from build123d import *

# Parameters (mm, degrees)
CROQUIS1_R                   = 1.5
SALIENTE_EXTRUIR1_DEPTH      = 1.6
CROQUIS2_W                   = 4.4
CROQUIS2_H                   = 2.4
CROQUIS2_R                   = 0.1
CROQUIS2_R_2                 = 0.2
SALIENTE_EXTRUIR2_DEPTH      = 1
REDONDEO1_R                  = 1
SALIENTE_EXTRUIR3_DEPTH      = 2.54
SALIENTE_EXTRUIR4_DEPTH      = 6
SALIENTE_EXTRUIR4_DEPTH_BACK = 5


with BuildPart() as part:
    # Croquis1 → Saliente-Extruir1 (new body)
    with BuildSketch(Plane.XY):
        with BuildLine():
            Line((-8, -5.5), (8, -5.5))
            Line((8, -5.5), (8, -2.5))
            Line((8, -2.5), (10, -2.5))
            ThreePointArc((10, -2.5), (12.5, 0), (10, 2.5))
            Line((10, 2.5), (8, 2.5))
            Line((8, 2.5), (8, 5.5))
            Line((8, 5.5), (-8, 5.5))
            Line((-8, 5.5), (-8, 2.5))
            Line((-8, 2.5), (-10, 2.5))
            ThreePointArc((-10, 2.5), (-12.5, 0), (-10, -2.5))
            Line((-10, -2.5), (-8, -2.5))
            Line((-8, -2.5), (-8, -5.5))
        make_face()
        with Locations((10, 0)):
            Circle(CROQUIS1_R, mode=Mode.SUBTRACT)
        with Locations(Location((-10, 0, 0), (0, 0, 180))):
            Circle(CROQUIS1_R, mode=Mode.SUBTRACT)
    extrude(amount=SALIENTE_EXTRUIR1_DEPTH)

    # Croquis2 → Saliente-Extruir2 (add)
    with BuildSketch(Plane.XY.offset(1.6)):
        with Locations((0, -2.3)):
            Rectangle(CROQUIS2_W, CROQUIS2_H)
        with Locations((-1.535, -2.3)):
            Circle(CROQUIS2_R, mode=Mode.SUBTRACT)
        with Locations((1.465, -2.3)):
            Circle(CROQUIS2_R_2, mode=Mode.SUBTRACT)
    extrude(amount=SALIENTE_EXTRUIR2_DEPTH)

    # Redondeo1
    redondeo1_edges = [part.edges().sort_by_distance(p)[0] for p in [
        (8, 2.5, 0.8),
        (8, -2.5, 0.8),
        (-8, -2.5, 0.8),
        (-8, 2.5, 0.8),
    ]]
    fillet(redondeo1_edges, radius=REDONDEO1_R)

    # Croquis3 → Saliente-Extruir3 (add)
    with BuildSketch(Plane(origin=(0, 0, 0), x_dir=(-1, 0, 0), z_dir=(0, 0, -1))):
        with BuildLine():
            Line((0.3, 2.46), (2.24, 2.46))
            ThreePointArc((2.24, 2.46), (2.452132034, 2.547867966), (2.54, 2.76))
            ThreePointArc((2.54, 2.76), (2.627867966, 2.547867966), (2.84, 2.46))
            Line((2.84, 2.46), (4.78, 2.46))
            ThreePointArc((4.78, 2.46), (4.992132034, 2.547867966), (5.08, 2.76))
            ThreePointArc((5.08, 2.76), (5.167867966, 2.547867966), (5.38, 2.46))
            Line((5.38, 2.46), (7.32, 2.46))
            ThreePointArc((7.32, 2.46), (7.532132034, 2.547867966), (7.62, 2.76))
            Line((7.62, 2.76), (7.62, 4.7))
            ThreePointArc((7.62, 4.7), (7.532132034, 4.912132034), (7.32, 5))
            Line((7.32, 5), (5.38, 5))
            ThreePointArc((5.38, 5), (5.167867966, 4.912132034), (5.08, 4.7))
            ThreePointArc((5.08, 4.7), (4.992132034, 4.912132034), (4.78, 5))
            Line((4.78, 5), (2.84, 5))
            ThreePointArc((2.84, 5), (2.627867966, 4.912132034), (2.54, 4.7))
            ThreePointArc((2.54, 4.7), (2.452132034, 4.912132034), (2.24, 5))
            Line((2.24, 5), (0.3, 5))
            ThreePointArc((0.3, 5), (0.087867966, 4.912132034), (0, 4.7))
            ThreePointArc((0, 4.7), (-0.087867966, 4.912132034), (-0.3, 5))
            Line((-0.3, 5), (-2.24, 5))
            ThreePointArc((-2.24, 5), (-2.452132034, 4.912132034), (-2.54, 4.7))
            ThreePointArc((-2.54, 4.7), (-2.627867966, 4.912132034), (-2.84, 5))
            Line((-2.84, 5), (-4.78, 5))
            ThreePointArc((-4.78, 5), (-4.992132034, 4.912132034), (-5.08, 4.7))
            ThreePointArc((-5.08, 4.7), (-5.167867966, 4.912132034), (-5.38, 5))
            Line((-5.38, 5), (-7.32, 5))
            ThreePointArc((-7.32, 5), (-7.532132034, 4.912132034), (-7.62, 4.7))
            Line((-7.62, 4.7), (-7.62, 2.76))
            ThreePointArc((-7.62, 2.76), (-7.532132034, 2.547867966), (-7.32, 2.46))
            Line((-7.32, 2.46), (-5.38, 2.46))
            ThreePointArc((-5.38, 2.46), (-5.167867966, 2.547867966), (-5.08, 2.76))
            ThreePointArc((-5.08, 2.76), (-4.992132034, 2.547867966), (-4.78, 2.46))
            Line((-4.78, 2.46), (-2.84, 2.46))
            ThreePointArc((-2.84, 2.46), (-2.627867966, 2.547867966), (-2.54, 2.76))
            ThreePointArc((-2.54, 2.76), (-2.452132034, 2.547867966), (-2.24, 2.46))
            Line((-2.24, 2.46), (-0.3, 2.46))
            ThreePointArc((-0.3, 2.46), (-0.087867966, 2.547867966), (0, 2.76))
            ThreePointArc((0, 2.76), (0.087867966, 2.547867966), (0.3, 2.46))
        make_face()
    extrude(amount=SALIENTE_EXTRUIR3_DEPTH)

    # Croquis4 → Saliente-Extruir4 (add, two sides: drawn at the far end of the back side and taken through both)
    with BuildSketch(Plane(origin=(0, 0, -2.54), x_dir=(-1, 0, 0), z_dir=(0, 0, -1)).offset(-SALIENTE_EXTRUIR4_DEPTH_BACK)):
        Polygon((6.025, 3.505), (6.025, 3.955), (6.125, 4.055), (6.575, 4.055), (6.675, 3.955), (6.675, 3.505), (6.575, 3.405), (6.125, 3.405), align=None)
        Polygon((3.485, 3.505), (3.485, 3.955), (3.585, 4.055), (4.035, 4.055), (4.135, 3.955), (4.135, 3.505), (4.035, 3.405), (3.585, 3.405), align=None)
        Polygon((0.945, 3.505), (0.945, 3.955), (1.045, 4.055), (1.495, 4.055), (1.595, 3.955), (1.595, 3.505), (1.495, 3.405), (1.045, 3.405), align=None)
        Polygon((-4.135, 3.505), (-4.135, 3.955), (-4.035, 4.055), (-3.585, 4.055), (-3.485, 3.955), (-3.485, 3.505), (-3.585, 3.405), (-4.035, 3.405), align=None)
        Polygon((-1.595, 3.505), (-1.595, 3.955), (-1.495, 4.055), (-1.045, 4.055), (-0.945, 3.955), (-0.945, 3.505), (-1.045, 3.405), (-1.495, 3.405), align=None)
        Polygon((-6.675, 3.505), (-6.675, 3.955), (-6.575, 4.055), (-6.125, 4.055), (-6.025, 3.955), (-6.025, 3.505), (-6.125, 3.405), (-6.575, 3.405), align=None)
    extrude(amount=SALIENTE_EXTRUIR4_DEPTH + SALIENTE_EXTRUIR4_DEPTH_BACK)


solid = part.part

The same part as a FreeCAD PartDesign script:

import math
import FreeCAD as App
import Part
import Sketcher
from FreeCAD import Vector
Q = App.Units.Quantity


def edges_at(feature, points):
    """Names of the edges that pass closest to the given points."""
    edges = feature.Shape.Edges
    near = lambda p: min(range(len(edges)), key=lambda i: edges[i].distToShape(Part.Vertex(*p))[0])
    return sorted({f"Edge{near(p) + 1}" for p in points})


def add_polygon(sketch, points):
    """Adds a closed chain of lines whose ends are joined by coincident constraints."""
    first, n = sketch.GeometryCount, len(points)
    for a, b in zip(points, points[1:] + points[:1]):
        sketch.addGeometry(Part.LineSegment(App.Vector(*a, 0), App.Vector(*b, 0)), False)
    for i in range(n):
        sketch.addConstraint(Sketcher.Constraint("Coincident", first + i, 2, first + (i + 1) % n, 1))

doc = App.newDocument("Part")
body = doc.addObject("PartDesign::Body", "Body")

# Sketch on XY plane
sketch1 = body.newObject("Sketcher::SketchObject", "Sketch")
sketch1.AttachmentSupport = (doc.getObject("XY_Plane"), [""])
sketch1.MapMode = "FlatFace"
sketch1.addGeometry([
    Part.LineSegment(Vector(-8, -5.5, 0), Vector(8, -5.5, 0)),  # 0
    Part.LineSegment(Vector(8, -5.5, 0), Vector(8, -2.5, 0)),  # 1
    Part.LineSegment(Vector(8, -2.5, 0), Vector(10, -2.5, 0)),  # 2
    Part.ArcOfCircle(Part.Circle(Vector(10, 0, 0), Vector(0, 0, 1), 2.5), math.radians(-90), math.radians(90)),  # 3
    Part.LineSegment(Vector(10, 2.5, 0), Vector(8, 2.5, 0)),  # 4
    Part.LineSegment(Vector(8, 2.5, 0), Vector(8, 5.5, 0)),  # 5
    Part.LineSegment(Vector(8, 5.5, 0), Vector(-8, 5.5, 0)),  # 6
    Part.LineSegment(Vector(-8, 5.5, 0), Vector(-8, 2.5, 0)),  # 7
    Part.LineSegment(Vector(-8, 2.5, 0), Vector(-10, 2.5, 0)),  # 8
    Part.ArcOfCircle(Part.Circle(Vector(-10, 0, 0), Vector(0, 0, 1), 2.5), math.radians(90), math.radians(270)),  # 9
    Part.LineSegment(Vector(-10, -2.5, 0), Vector(-8, -2.5, 0)),  # 10
    Part.LineSegment(Vector(-8, -2.5, 0), Vector(-8, -5.5, 0)),  # 11
    Part.Circle(Vector(-10, 0, 0), Vector(0, 0, 1), 1.5),  # 12
    Part.Circle(Vector(10, 0, 0), Vector(0, 0, 1), 1.5),  # 13
], False)
sketch1.addConstraint([
    Sketcher.Constraint("Coincident", 0, 2, 1, 1),
    Sketcher.Constraint("Coincident", 1, 2, 2, 1),
    Sketcher.Constraint("Tangent", 2, 2, 3, 1),
    Sketcher.Constraint("Tangent", 3, 2, 4, 1),
    Sketcher.Constraint("Coincident", 4, 2, 5, 1),
    Sketcher.Constraint("Coincident", 5, 2, 6, 1),
    Sketcher.Constraint("Coincident", 6, 2, 7, 1),
    Sketcher.Constraint("Coincident", 7, 2, 8, 1),
    Sketcher.Constraint("Tangent", 8, 2, 9, 1),
    Sketcher.Constraint("Tangent", 9, 2, 10, 1),
    Sketcher.Constraint("Coincident", 10, 2, 11, 1),
    Sketcher.Constraint("Coincident", 11, 2, 0, 1),
    Sketcher.Constraint("Horizontal", 0),
    Sketcher.Constraint("Vertical", 1),
    Sketcher.Constraint("Horizontal", 2),
    Sketcher.Constraint("Horizontal", 4),
    Sketcher.Constraint("Vertical", 5),
    Sketcher.Constraint("Horizontal", 6),
    Sketcher.Constraint("Vertical", 7),
    Sketcher.Constraint("Horizontal", 8),
    Sketcher.Constraint("Horizontal", 10),
    Sketcher.Constraint("Vertical", 11),
    Sketcher.Constraint("Coincident", 12, 3, 9, 3),
    Sketcher.Constraint("Coincident", 13, 3, 3, 3),
    Sketcher.Constraint("Equal", 3, 9),
    Sketcher.Constraint("Equal", 12, 13),
    Sketcher.Constraint("Symmetric", 3, 3, 9, 3, -1, 1),
    Sketcher.Constraint("Symmetric", 0, 2, 6, 2, -1, 1),
    Sketcher.Constraint("Symmetric", 4, 2, 7, 2, -2),
    Sketcher.Constraint("Vertical", 7, 2, 10, 2),
    Sketcher.Constraint("Diameter", 12, Q("3 mm")),
    Sketcher.Constraint("Radius", 3, Q("2.5 mm")),
    Sketcher.Constraint("DistanceX", 0, 1, 0, 2, Q("16 mm")),
    Sketcher.Constraint("DistanceX", 2, 1, 2, 2, Q("2 mm")),
    Sketcher.Constraint("DistanceY", 1, 1, 1, 2, Q("3 mm")),
])
pad1 = body.newObject("PartDesign::Pad", "Pad")
pad1.Profile = sketch1
pad1.Length = 1.6

# Sketch on XY plane
sketch2 = body.newObject("Sketcher::SketchObject", "Sketch001")
sketch2.AttachmentSupport = (doc.getObject("XY_Plane"), [""])
sketch2.MapMode = "FlatFace"
sketch2.AttachmentOffset = App.Placement(Vector(0, 0, 1.6), App.Rotation())
add_polygon(sketch2, [(-2.2, -1.1), (-2.2, -3.5), (2.2, -3.5), (2.2, -1.1)])  # lines 0-3
sketch2.addGeometry(Part.Circle(Vector(-1.53, -2.3, 0), Vector(0, 0, 1), 0.1), False)  # 4
sketch2.addGeometry(Part.Circle(Vector(1.47, -2.3, 0), Vector(0, 0, 1), 0.2), False)  # 5
sketch2.addConstraint([
    Sketcher.Constraint("Vertical", 0),
    Sketcher.Constraint("Horizontal", 1),
    Sketcher.Constraint("Vertical", 2),
    Sketcher.Constraint("Horizontal", 3),
    Sketcher.Constraint("Horizontal", 4, 3, 5, 3),
    Sketcher.Constraint("Diameter", 4, Q("0.2 mm")),
    Sketcher.Constraint("Diameter", 5, Q("0.4 mm")),
    Sketcher.Constraint("DistanceX", 1, 1, 1, 2, Q("4.4 mm")),
    Sketcher.Constraint("DistanceY", 0, 2, 0, 1, Q("2.4 mm")),
    Sketcher.Constraint("DistanceX", 4, 3, 5, 3, Q("3 mm")),
    Sketcher.Constraint("DistanceY", 4, 3, -1, 1, Q("2.3 mm")),
    Sketcher.Constraint("DistanceX", 0, 2, -1, 1, Q("2.2 mm")),
    Sketcher.Constraint("DistanceY", 0, 2, -1, 1, Q("3.5 mm")),
    Sketcher.Constraint("DistanceX", 4, 3, -1, 1, Q("1.535 mm")),
])
pad2 = body.newObject("PartDesign::Pad", "Pad001")
pad2.Profile = sketch2
pad2.Length = 1
doc.recompute()

fillet = body.newObject("PartDesign::Fillet", "Fillet")
fillet.Base = (pad2, edges_at(pad2, [
    (8, 2.5, 0.8),
    (8, -2.5, 0.8),
    (-8, -2.5, 0.8),
    (-8, 2.5, 0.8),
]))
fillet.Radius = 1

# Sketch on XY plane
sketch3 = body.newObject("Sketcher::SketchObject", "Sketch002")
sketch3.AttachmentSupport = (doc.getObject("XY_Plane"), [""])
sketch3.MapMode = "FlatFace"
sketch3.addGeometry([
    Part.LineSegment(Vector(-0.3, 2.46, 0), Vector(-2.24, 2.46, 0)),  # 0
    Part.ArcOfCircle(Part.Circle(Vector(-2.24, 2.76, 0), Vector(0, 0, 1), 0.3), math.radians(-180), math.radians(-90)),  # 1
    Part.ArcOfCircle(Part.Circle(Vector(-2.84, 2.76, 0), Vector(0, 0, 1), 0.3), math.radians(-90), math.radians(0)),  # 2
    Part.LineSegment(Vector(-2.84, 2.46, 0), Vector(-4.78, 2.46, 0)),  # 3
    Part.ArcOfCircle(Part.Circle(Vector(-4.78, 2.76, 0), Vector(0, 0, 1), 0.3), math.radians(-180), math.radians(-90)),  # 4
    Part.ArcOfCircle(Part.Circle(Vector(-5.38, 2.76, 0), Vector(0, 0, 1), 0.3), math.radians(-90), math.radians(0)),  # 5
    Part.LineSegment(Vector(-5.38, 2.46, 0), Vector(-7.32, 2.46, 0)),  # 6
    Part.ArcOfCircle(Part.Circle(Vector(-7.32, 2.76, 0), Vector(0, 0, 1), 0.3), math.radians(-180), math.radians(-90)),  # 7
    Part.LineSegment(Vector(-7.62, 2.76, 0), Vector(-7.62, 4.7, 0)),  # 8
    Part.ArcOfCircle(Part.Circle(Vector(-7.32, 4.7, 0), Vector(0, 0, 1), 0.3), math.radians(90), math.radians(180)),  # 9
    Part.LineSegment(Vector(-7.32, 5, 0), Vector(-5.38, 5, 0)),  # 10
    Part.ArcOfCircle(Part.Circle(Vector(-5.38, 4.7, 0), Vector(0, 0, 1), 0.3), math.radians(0), math.radians(90)),  # 11
    Part.ArcOfCircle(Part.Circle(Vector(-4.78, 4.7, 0), Vector(0, 0, 1), 0.3), math.radians(90), math.radians(180)),  # 12
    Part.LineSegment(Vector(-4.78, 5, 0), Vector(-2.84, 5, 0)),  # 13
    Part.ArcOfCircle(Part.Circle(Vector(-2.84, 4.7, 0), Vector(0, 0, 1), 0.3), math.radians(0), math.radians(90)),  # 14
    Part.ArcOfCircle(Part.Circle(Vector(-2.24, 4.7, 0), Vector(0, 0, 1), 0.3), math.radians(90), math.radians(180)),  # 15
    Part.LineSegment(Vector(-2.24, 5, 0), Vector(-0.3, 5, 0)),  # 16
    Part.ArcOfCircle(Part.Circle(Vector(-0.3, 4.7, 0), Vector(0, 0, 1), 0.3), math.radians(0), math.radians(90)),  # 17
    Part.ArcOfCircle(Part.Circle(Vector(0.3, 4.7, 0), Vector(0, 0, 1), 0.3), math.radians(90), math.radians(180)),  # 18
    Part.LineSegment(Vector(0.3, 5, 0), Vector(2.24, 5, 0)),  # 19
    Part.ArcOfCircle(Part.Circle(Vector(2.24, 4.7, 0), Vector(0, 0, 1), 0.3), math.radians(0), math.radians(90)),  # 20
    Part.ArcOfCircle(Part.Circle(Vector(2.84, 4.7, 0), Vector(0, 0, 1), 0.3), math.radians(90), math.radians(180)),  # 21
    Part.LineSegment(Vector(2.84, 5, 0), Vector(4.78, 5, 0)),  # 22
    Part.ArcOfCircle(Part.Circle(Vector(4.78, 4.7, 0), Vector(0, 0, 1), 0.3), math.radians(0), math.radians(90)),  # 23
    Part.ArcOfCircle(Part.Circle(Vector(5.38, 4.7, 0), Vector(0, 0, 1), 0.3), math.radians(90), math.radians(180)),  # 24
    Part.LineSegment(Vector(5.38, 5, 0), Vector(7.32, 5, 0)),  # 25
    Part.ArcOfCircle(Part.Circle(Vector(7.32, 4.7, 0), Vector(0, 0, 1), 0.3), math.radians(0), math.radians(90)),  # 26
    Part.LineSegment(Vector(7.62, 4.7, 0), Vector(7.62, 2.76, 0)),  # 27
    Part.ArcOfCircle(Part.Circle(Vector(7.32, 2.76, 0), Vector(0, 0, 1), 0.3), math.radians(-90), math.radians(0)),  # 28
    Part.LineSegment(Vector(7.32, 2.46, 0), Vector(5.38, 2.46, 0)),  # 29
    Part.ArcOfCircle(Part.Circle(Vector(5.38, 2.76, 0), Vector(0, 0, 1), 0.3), math.radians(-180), math.radians(-90)),  # 30
    Part.ArcOfCircle(Part.Circle(Vector(4.78, 2.76, 0), Vector(0, 0, 1), 0.3), math.radians(-90), math.radians(0)),  # 31
    Part.LineSegment(Vector(4.78, 2.46, 0), Vector(2.84, 2.46, 0)),  # 32
    Part.ArcOfCircle(Part.Circle(Vector(2.84, 2.76, 0), Vector(0, 0, 1), 0.3), math.radians(-180), math.radians(-90)),  # 33
    Part.ArcOfCircle(Part.Circle(Vector(2.24, 2.76, 0), Vector(0, 0, 1), 0.3), math.radians(-90), math.radians(0)),  # 34
    Part.LineSegment(Vector(2.24, 2.46, 0), Vector(0.3, 2.46, 0)),  # 35
    Part.ArcOfCircle(Part.Circle(Vector(0.3, 2.76, 0), Vector(0, 0, 1), 0.3), math.radians(-180), math.radians(-90)),  # 36
    Part.ArcOfCircle(Part.Circle(Vector(-0.3, 2.76, 0), Vector(0, 0, 1), 0.3), math.radians(-90), math.radians(0)),  # 37
], False)
sketch3.addConstraint([
    Sketcher.Constraint("Tangent", 0, 2, 1, 2),
    Sketcher.Constraint("Tangent", 1, 1, 2, 2),
    Sketcher.Constraint("Tangent", 2, 1, 3, 1),
    Sketcher.Constraint("Tangent", 3, 2, 4, 2),
    Sketcher.Constraint("Tangent", 4, 1, 5, 2),
    Sketcher.Constraint("Tangent", 5, 1, 6, 1),
    Sketcher.Constraint("Tangent", 6, 2, 7, 2),
    Sketcher.Constraint("Tangent", 7, 1, 8, 1),
    Sketcher.Constraint("Tangent", 8, 2, 9, 2),
    Sketcher.Constraint("Tangent", 9, 1, 10, 1),
    Sketcher.Constraint("Tangent", 10, 2, 11, 2),
    Sketcher.Constraint("Tangent", 11, 1, 12, 2),
    Sketcher.Constraint("Tangent", 12, 1, 13, 1),
    Sketcher.Constraint("Tangent", 13, 2, 14, 2),
    Sketcher.Constraint("Tangent", 14, 1, 15, 2),
    Sketcher.Constraint("Tangent", 15, 1, 16, 1),
    Sketcher.Constraint("Tangent", 16, 2, 17, 2),
    Sketcher.Constraint("Tangent", 17, 1, 18, 2),
    Sketcher.Constraint("Tangent", 18, 1, 19, 1),
    Sketcher.Constraint("Tangent", 19, 2, 20, 2),
    Sketcher.Constraint("Tangent", 20, 1, 21, 2),
    Sketcher.Constraint("Tangent", 21, 1, 22, 1),
    Sketcher.Constraint("Tangent", 22, 2, 23, 2),
    Sketcher.Constraint("Tangent", 23, 1, 24, 2),
    Sketcher.Constraint("Tangent", 24, 1, 25, 1),
    Sketcher.Constraint("Tangent", 25, 2, 26, 2),
    Sketcher.Constraint("Tangent", 26, 1, 27, 1),
    Sketcher.Constraint("Tangent", 27, 2, 28, 2),
    Sketcher.Constraint("Tangent", 28, 1, 29, 1),
    Sketcher.Constraint("Tangent", 29, 2, 30, 2),
    Sketcher.Constraint("Tangent", 30, 1, 31, 2),
    Sketcher.Constraint("Tangent", 31, 1, 32, 1),
    Sketcher.Constraint("Tangent", 32, 2, 33, 2),
    Sketcher.Constraint("Tangent", 33, 1, 34, 2),
    Sketcher.Constraint("Tangent", 34, 1, 35, 1),
    Sketcher.Constraint("Tangent", 35, 2, 36, 2),
    Sketcher.Constraint("Tangent", 36, 1, 37, 2),
    Sketcher.Constraint("Tangent", 37, 1, 0, 1),
    Sketcher.Constraint("Horizontal", 0),
    Sketcher.Constraint("Horizontal", 3),
    Sketcher.Constraint("Horizontal", 6),
    Sketcher.Constraint("Vertical", 8),
    Sketcher.Constraint("Horizontal", 10),
    Sketcher.Constraint("Horizontal", 13),
    Sketcher.Constraint("Horizontal", 16),
    Sketcher.Constraint("Horizontal", 19),
    Sketcher.Constraint("Horizontal", 22),
    Sketcher.Constraint("Horizontal", 25),
    Sketcher.Constraint("Vertical", 27),
    Sketcher.Constraint("Horizontal", 29),
    Sketcher.Constraint("Horizontal", 32),
    Sketcher.Constraint("Horizontal", 35),
    Sketcher.Constraint("Equal", 1, 2),
    Sketcher.Constraint("Equal", 2, 4),
    Sketcher.Constraint("Equal", 4, 5),
    Sketcher.Constraint("Equal", 5, 7),
    Sketcher.Constraint("Equal", 7, 9),
    Sketcher.Constraint("Equal", 9, 11),
    Sketcher.Constraint("Equal", 11, 12),
    Sketcher.Constraint("Equal", 12, 14),
    Sketcher.Constraint("Equal", 14, 15),
    Sketcher.Constraint("Equal", 15, 17),
    Sketcher.Constraint("Equal", 17, 18),
    Sketcher.Constraint("Equal", 18, 20),
    Sketcher.Constraint("Equal", 20, 21),
    Sketcher.Constraint("Equal", 21, 23),
    Sketcher.Constraint("Equal", 23, 24),
    Sketcher.Constraint("Equal", 24, 26),
    Sketcher.Constraint("Equal", 26, 28),
    Sketcher.Constraint("Equal", 28, 30),
    Sketcher.Constraint("Equal", 30, 31),
    Sketcher.Constraint("Equal", 31, 33),
    Sketcher.Constraint("Equal", 33, 34),
    Sketcher.Constraint("Equal", 34, 36),
    Sketcher.Constraint("Equal", 36, 37),
    Sketcher.Constraint("Symmetric", 17, 3, 18, 3, -2),
    Sketcher.Constraint("Symmetric", 14, 3, 21, 3, -2),
    Sketcher.Constraint("Symmetric", 11, 3, 24, 3, -2),
    Sketcher.Constraint("Symmetric", 7, 3, 28, 3, -2),
    Sketcher.Constraint("Symmetric", 4, 3, 31, 3, -2),
    Sketcher.Constraint("Symmetric", 1, 3, 34, 3, -2),
    Sketcher.Constraint("PointOnObject", 36, 1, -2),
    Sketcher.Constraint("Horizontal", 1, 3, 2, 3),
    Sketcher.Constraint("Horizontal", 4, 3, 5, 3),
    Sketcher.Constraint("Horizontal", 11, 3, 12, 3),
    Sketcher.Constraint("Horizontal", 14, 3, 15, 3),
    Sketcher.Constraint("Vertical", 5, 3, 11, 3),
    Sketcher.Constraint("Vertical", 2, 3, 14, 3),
    Sketcher.Constraint("Equal", 0, 3),
    Sketcher.Constraint("Equal", 3, 6),
    Sketcher.Constraint("Equal", 35, 8),
    Sketcher.Constraint("Radius", 1, Q("0.3 mm")),
    Sketcher.Constraint("DistanceY", -1, 1, 9, 1, Q("5 mm")),
    Sketcher.Constraint("DistanceX", 0, 2, 0, 1, Q("1.94 mm")),
])
pad3 = body.newObject("PartDesign::Pad", "Pad002")
pad3.Profile = sketch3
pad3.Length = 2.54
pad3.Reversed = True

# Sketch on XY plane
sketch4 = body.newObject("Sketcher::SketchObject", "Sketch003")
sketch4.AttachmentSupport = (doc.getObject("XY_Plane"), [""])
sketch4.MapMode = "FlatFace"
sketch4.AttachmentOffset = App.Placement(Vector(0, 0, -2.54), App.Rotation())
add_polygon(sketch4, [(-6.03, 3.96), (-6.03, 3.5), (-6.12, 3.4), (-6.58, 3.4), (-6.67, 3.5), (-6.67, 3.96), (-6.58, 4.05), (-6.12, 4.05)])  # lines 0-7
add_polygon(sketch4, [(-3.48, 3.96), (-3.48, 3.5), (-3.58, 3.4), (-4.04, 3.4), (-4.13, 3.5), (-4.13, 3.96), (-4.04, 4.05), (-3.58, 4.05)])  # lines 8-15
add_polygon(sketch4, [(-0.94, 3.96), (-0.94, 3.5), (-1.04, 3.4), (-1.5, 3.4), (-1.59, 3.5), (-1.59, 3.96), (-1.5, 4.05), (-1.04, 4.05)])  # lines 16-23
add_polygon(sketch4, [(4.13, 3.96), (4.13, 3.5), (4.04, 3.4), (3.58, 3.4), (3.48, 3.5), (3.48, 3.96), (3.58, 4.05), (4.04, 4.05)])  # lines 24-31
add_polygon(sketch4, [(1.59, 3.96), (1.59, 3.5), (1.5, 3.4), (1.04, 3.4), (0.94, 3.5), (0.94, 3.96), (1.04, 4.05), (1.5, 4.05)])  # lines 32-39
add_polygon(sketch4, [(6.67, 3.96), (6.67, 3.5), (6.58, 3.4), (6.12, 3.4), (6.03, 3.5), (6.03, 3.96), (6.12, 4.05), (6.58, 4.05)])  # lines 40-47
sketch4.addConstraint([
    Sketcher.Constraint("Vertical", 0),
    Sketcher.Constraint("Horizontal", 2),
    Sketcher.Constraint("Vertical", 4),
    Sketcher.Constraint("Horizontal", 6),
    Sketcher.Constraint("Vertical", 8),
    Sketcher.Constraint("Horizontal", 10),
    Sketcher.Constraint("Vertical", 12),
    Sketcher.Constraint("Horizontal", 14),
    Sketcher.Constraint("Vertical", 16),
    Sketcher.Constraint("Horizontal", 18),
    Sketcher.Constraint("Vertical", 20),
    Sketcher.Constraint("Horizontal", 22),
    Sketcher.Constraint("Vertical", 24),
    Sketcher.Constraint("Horizontal", 26),
    Sketcher.Constraint("Vertical", 28),
    Sketcher.Constraint("Horizontal", 30),
    Sketcher.Constraint("Vertical", 32),
    Sketcher.Constraint("Horizontal", 34),
    Sketcher.Constraint("Vertical", 36),
    Sketcher.Constraint("Horizontal", 38),
    Sketcher.Constraint("Vertical", 40),
    Sketcher.Constraint("Horizontal", 42),
    Sketcher.Constraint("Vertical", 44),
    Sketcher.Constraint("Horizontal", 46),
    Sketcher.Constraint("Symmetric", 11, 2, 24, 2, -2),
    Sketcher.Constraint("Symmetric", 10, 2, 25, 2, -2),
    Sketcher.Constraint("Symmetric", 8, 2, 27, 2, -2),
    Sketcher.Constraint("Symmetric", 14, 2, 29, 2, -2),
    Sketcher.Constraint("Symmetric", 19, 2, 32, 2, -2),
    Sketcher.Constraint("Symmetric", 18, 2, 33, 2, -2),
    Sketcher.Constraint("Symmetric", 16, 2, 35, 2, -2),
    Sketcher.Constraint("Symmetric", 22, 2, 37, 2, -2),
    Sketcher.Constraint("Symmetric", 3, 2, 40, 2, -2),
    Sketcher.Constraint("Symmetric", 2, 2, 41, 2, -2),
    Sketcher.Constraint("Symmetric", 0, 2, 43, 2, -2),
    Sketcher.Constraint("Symmetric", 6, 2, 45, 2, -2),
    Sketcher.Constraint("Perpendicular", 1, 3),
    Sketcher.Constraint("Perpendicular", 3, 5),
    Sketcher.Constraint("Perpendicular", 5, 7),
    Sketcher.Constraint("Perpendicular", 7, 9),
    Sketcher.Constraint("Perpendicular", 9, 11),
    Sketcher.Constraint("Perpendicular", 11, 13),
    Sketcher.Constraint("Perpendicular", 13, 15),
    Sketcher.Constraint("Perpendicular", 15, 17),
    Sketcher.Constraint("Perpendicular", 17, 19),
    Sketcher.Constraint("Perpendicular", 19, 21),
    Sketcher.Constraint("Perpendicular", 21, 23),
    Sketcher.Constraint("Perpendicular", 23, 25),
    Sketcher.Constraint("Perpendicular", 25, 27),
    Sketcher.Constraint("Perpendicular", 27, 29),
    Sketcher.Constraint("Perpendicular", 29, 31),
    Sketcher.Constraint("Perpendicular", 33, 35),
    Sketcher.Constraint("Perpendicular", 35, 37),
    Sketcher.Constraint("Perpendicular", 37, 39),
    Sketcher.Constraint("Perpendicular", 41, 43),
    Sketcher.Constraint("Perpendicular", 43, 45),
    Sketcher.Constraint("Perpendicular", 45, 47),
    Sketcher.Constraint("Horizontal", 0, 2, 3, 2),
    Sketcher.Constraint("Horizontal", 4, 2, 7, 2),
    Sketcher.Constraint("Horizontal", 3, 2, 8, 2),
    Sketcher.Constraint("Horizontal", 2, 2, 9, 2),
    Sketcher.Constraint("Horizontal", 8, 2, 11, 2),
    Sketcher.Constraint("Horizontal", 7, 2, 12, 2),
    Sketcher.Constraint("Horizontal", 6, 2, 13, 2),
    Sketcher.Constraint("Horizontal", 12, 2, 15, 2),
    Sketcher.Constraint("Horizontal", 11, 2, 16, 2),
    Sketcher.Constraint("Horizontal", 10, 2, 17, 2),
    Sketcher.Constraint("Horizontal", 16, 2, 19, 2),
    Sketcher.Constraint("Horizontal", 15, 2, 20, 2),
    Sketcher.Constraint("Horizontal", 14, 2, 21, 2),
    Sketcher.Constraint("Horizontal", 20, 2, 23, 2),
    Sketcher.Constraint("Horizontal", 28, 2, 31, 2),
    Sketcher.Constraint("Horizontal", 36, 2, 39, 2),
    Sketcher.Constraint("Horizontal", 44, 2, 47, 2),
    Sketcher.Constraint("Vertical", 2, 2, 5, 2),
    Sketcher.Constraint("Equal", 6, 10),
    Sketcher.Constraint("Equal", 14, 18),
    Sketcher.Constraint("Equal", 46, 0),
    Sketcher.Constraint("DistanceX", 2, 2, 2, 1, Q("0.45 mm")),
    Sketcher.Constraint("DistanceX", 1, 2, 0, 2, Q("0.1 mm")),
    Sketcher.Constraint("DistanceX", 0, 2, 8, 2, Q("2.54 mm")),
    Sketcher.Constraint("DistanceX", 8, 2, 16, 2, Q("2.54 mm")),
    Sketcher.Constraint("DistanceX", 16, 2, 24, 2, Q("5.08 mm")),
    Sketcher.Constraint("DistanceY", -1, 1, 0, 2, Q("3.505 mm")),
])
pad4 = body.newObject("PartDesign::Pad", "Pad003")
pad4.Profile = sketch4
pad4.Type = "TwoLengths"
pad4.Length = 6
pad4.Length2 = 5
pad4.Reversed = True

doc.recompute()
